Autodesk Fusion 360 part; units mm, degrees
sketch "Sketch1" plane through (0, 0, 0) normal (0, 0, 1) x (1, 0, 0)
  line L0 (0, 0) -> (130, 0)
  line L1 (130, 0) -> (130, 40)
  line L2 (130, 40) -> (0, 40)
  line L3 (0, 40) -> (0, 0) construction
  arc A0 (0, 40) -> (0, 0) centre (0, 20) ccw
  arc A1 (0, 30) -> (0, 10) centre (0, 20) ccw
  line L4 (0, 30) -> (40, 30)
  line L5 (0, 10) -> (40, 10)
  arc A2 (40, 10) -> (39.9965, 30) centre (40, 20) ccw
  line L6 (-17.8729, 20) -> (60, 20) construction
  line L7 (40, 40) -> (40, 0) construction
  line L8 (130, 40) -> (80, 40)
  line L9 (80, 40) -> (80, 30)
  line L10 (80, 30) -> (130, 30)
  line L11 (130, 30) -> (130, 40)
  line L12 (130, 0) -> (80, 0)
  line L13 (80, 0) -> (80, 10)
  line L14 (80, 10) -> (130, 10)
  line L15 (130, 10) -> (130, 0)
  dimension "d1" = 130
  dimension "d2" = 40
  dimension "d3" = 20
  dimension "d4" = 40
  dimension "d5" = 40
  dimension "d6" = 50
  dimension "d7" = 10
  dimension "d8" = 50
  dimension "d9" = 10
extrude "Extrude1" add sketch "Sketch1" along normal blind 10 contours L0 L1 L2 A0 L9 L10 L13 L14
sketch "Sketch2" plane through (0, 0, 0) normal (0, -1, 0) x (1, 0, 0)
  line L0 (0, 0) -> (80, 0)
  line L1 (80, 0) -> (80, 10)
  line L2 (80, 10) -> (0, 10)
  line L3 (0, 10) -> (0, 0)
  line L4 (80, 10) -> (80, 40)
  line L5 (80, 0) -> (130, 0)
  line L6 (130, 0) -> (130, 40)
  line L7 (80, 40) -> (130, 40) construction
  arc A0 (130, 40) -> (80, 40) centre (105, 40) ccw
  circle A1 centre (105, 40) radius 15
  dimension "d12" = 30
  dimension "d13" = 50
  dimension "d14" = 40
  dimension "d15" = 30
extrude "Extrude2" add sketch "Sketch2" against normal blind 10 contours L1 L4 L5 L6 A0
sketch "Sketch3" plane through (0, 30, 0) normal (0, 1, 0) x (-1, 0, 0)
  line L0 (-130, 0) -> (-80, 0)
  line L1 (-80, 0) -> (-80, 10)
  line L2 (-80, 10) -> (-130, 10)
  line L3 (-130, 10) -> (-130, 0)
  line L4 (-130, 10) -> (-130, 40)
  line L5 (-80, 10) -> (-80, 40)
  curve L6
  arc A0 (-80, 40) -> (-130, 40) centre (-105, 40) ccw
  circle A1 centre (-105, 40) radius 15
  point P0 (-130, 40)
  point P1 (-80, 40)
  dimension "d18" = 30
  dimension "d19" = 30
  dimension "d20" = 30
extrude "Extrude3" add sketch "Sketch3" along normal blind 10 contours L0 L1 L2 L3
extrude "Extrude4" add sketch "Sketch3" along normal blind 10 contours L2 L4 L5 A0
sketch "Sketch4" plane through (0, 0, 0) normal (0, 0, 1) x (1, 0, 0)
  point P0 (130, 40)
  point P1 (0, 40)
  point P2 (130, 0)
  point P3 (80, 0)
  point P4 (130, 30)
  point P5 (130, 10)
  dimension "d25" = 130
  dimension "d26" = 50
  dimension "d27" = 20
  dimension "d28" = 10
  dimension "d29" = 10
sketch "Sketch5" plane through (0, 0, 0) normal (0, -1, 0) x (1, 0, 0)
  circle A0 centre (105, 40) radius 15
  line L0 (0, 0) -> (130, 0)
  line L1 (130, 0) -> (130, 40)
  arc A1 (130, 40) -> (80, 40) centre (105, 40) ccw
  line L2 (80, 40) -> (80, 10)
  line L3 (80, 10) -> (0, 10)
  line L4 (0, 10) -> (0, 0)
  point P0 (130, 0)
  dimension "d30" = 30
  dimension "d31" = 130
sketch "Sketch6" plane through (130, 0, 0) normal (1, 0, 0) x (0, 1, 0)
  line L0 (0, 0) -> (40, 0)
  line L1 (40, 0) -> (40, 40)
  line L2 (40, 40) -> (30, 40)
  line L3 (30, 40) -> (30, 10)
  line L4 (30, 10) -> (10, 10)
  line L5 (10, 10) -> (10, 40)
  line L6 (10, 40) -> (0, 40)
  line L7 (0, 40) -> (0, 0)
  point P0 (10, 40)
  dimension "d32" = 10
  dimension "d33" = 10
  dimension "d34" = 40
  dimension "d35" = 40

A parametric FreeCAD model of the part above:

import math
import FreeCAD as App
import Part
import Sketcher

V = App.Vector
Q = App.Units.Quantity


def add_polygon(sketch, points):
    """Adds a closed chain of lines whose ends are joined by coincident constraints."""
    first, n = sketch.GeometryCount, len(points)
    for a, b in zip(points, points[1:] + points[:1]):
        sketch.addGeometry(Part.LineSegment(App.Vector(*a, 0), App.Vector(*b, 0)), False)
    for i in range(n):
        sketch.addConstraint(Sketcher.Constraint("Coincident", first + i, 2, first + (i + 1) % n, 1))

doc = App.newDocument("Part")
body = doc.addObject("PartDesign::Body", "Body")

# Sketch on XY plane
sketch1 = body.newObject("Sketcher::SketchObject", "Sketch")
sketch1.AttachmentSupport = (doc.getObject("XY_Plane"), [""])
sketch1.MapMode = "FlatFace"
sketch1.addGeometry(Part.ArcOfCircle(Part.Circle(V(0, 20, 0), V(0, 0, 1), 20), math.radians(90), math.radians(270)), False)
sketch1.addGeometry(Part.LineSegment(V(0, 0, 0), V(80, 0, 0)), False)
sketch1.addGeometry(Part.LineSegment(V(80, 0, 0), V(80, 10, 0)), False)
sketch1.addGeometry(Part.LineSegment(V(80, 10, 0), V(130, 10, 0)), False)
sketch1.addGeometry(Part.LineSegment(V(130, 10, 0), V(130, 30, 0)), False)
sketch1.addGeometry(Part.LineSegment(V(130, 30, 0), V(80, 30, 0)), False)
sketch1.addGeometry(Part.LineSegment(V(80, 30, 0), V(80, 40, 0)), False)
sketch1.addGeometry(Part.LineSegment(V(80, 40, 0), V(0, 40, 0)), False)
sketch1.addGeometry(Part.ArcOfCircle(Part.Circle(V(0, 20, 0), V(0, 0, 1), 10), math.radians(90), math.radians(270)), False)
sketch1.addGeometry(Part.LineSegment(V(0, 30, 0), V(40, 30, 0)), False)
sketch1.addGeometry(Part.ArcOfCircle(Part.Circle(V(40, 20, 0), V(0, 0, 1), 10), math.radians(-90), math.radians(90)), False)
sketch1.addGeometry(Part.LineSegment(V(40, 10, 0), V(0, 10, 0)), False)
sketch1.addConstraint(Sketcher.Constraint("Tangent", 0, 2, 1, 1))
sketch1.addConstraint(Sketcher.Constraint("Coincident", 1, 2, 2, 1))
sketch1.addConstraint(Sketcher.Constraint("Coincident", 2, 2, 3, 1))
sketch1.addConstraint(Sketcher.Constraint("Coincident", 3, 2, 4, 1))
sketch1.addConstraint(Sketcher.Constraint("Coincident", 4, 2, 5, 1))
sketch1.addConstraint(Sketcher.Constraint("Coincident", 5, 2, 6, 1))
sketch1.addConstraint(Sketcher.Constraint("Coincident", 6, 2, 7, 1))
sketch1.addConstraint(Sketcher.Constraint("Tangent", 7, 2, 0, 1))
sketch1.addConstraint(Sketcher.Constraint("Tangent", 8, 1, 9, 1))
sketch1.addConstraint(Sketcher.Constraint("Tangent", 9, 2, 10, 2))
sketch1.addConstraint(Sketcher.Constraint("Tangent", 10, 1, 11, 1))
sketch1.addConstraint(Sketcher.Constraint("Tangent", 11, 2, 8, 2))
sketch1.addConstraint(Sketcher.Constraint("Horizontal", 1))
sketch1.addConstraint(Sketcher.Constraint("Vertical", 2))
sketch1.addConstraint(Sketcher.Constraint("Horizontal", 3))
sketch1.addConstraint(Sketcher.Constraint("Vertical", 4))
sketch1.addConstraint(Sketcher.Constraint("Horizontal", 5))
sketch1.addConstraint(Sketcher.Constraint("Vertical", 6))
sketch1.addConstraint(Sketcher.Constraint("Horizontal", 7))
sketch1.addConstraint(Sketcher.Constraint("Horizontal", 9))
sketch1.addConstraint(Sketcher.Constraint("Horizontal", 11))
sketch1.addConstraint(Sketcher.Constraint("Coincident", 0, 2, -1, 1))
sketch1.addConstraint(Sketcher.Constraint("Coincident", 8, 3, 0, 3))
sketch1.addConstraint(Sketcher.Constraint("Horizontal", 5, 2, 8, 1))
sketch1.addConstraint(Sketcher.Constraint("Horizontal", 3, 2, 10, 1))
sketch1.addConstraint(Sketcher.Constraint("Vertical", 2, 2, 5, 2))
sketch1.addConstraint(Sketcher.Constraint("Radius", 0, Q("20 mm")))
sketch1.addConstraint(Sketcher.Constraint("Radius", 8, Q("10 mm")))
sketch1.addConstraint(Sketcher.Constraint("DistanceX", 3, 1, 3, 2, Q("50 mm")))
sketch1.addConstraint(Sketcher.Constraint("DistanceX", 9, 1, 9, 2, Q("40 mm")))
sketch1.addConstraint(Sketcher.Constraint("DistanceX", -1, 1, 3, 2, Q("130 mm")))
pad1 = body.newObject("PartDesign::Pad", "Pad")
pad1.Profile = sketch1
pad1.Length = 10

# Sketch on XZ plane
sketch2 = body.newObject("Sketcher::SketchObject", "Sketch001")
sketch2.AttachmentSupport = (doc.getObject("XZ_Plane"), [""])
sketch2.MapMode = "FlatFace"
sketch2.addGeometry(Part.LineSegment(V(80, 40, 0), V(80, 0, 0)), False)
sketch2.addGeometry(Part.LineSegment(V(80, 0, 0), V(130, 0, 0)), False)
sketch2.addGeometry(Part.LineSegment(V(130, 0, 0), V(130, 40, 0)), False)
sketch2.addGeometry(Part.ArcOfCircle(Part.Circle(V(105, 40, 0), V(0, 0, 1), 25), math.radians(0), math.radians(180)), False)
sketch2.addGeometry(Part.Circle(V(105, 40, 0), V(0, 0, 1), 15), False)
sketch2.addConstraint(Sketcher.Constraint("Coincident", 0, 2, 1, 1))
sketch2.addConstraint(Sketcher.Constraint("Coincident", 1, 2, 2, 1))
sketch2.addConstraint(Sketcher.Constraint("Tangent", 2, 2, 3, 1))
sketch2.addConstraint(Sketcher.Constraint("Tangent", 3, 2, 0, 1))
sketch2.addConstraint(Sketcher.Constraint("Vertical", 0))
sketch2.addConstraint(Sketcher.Constraint("Horizontal", 1))
sketch2.addConstraint(Sketcher.Constraint("Vertical", 2))
sketch2.addConstraint(Sketcher.Constraint("Coincident", 4, 3, 3, 3))
sketch2.addConstraint(Sketcher.Constraint("PointOnObject", 0, 2, -1))
sketch2.addConstraint(Sketcher.Constraint("Diameter", 4, Q("30 mm")))
sketch2.addConstraint(Sketcher.Constraint("Radius", 3, Q("25 mm")))
sketch2.addConstraint(Sketcher.Constraint("DistanceY", 0, 2, 0, 1, Q("40 mm")))
sketch2.addConstraint(Sketcher.Constraint("DistanceX", -1, 1, 3, 3, Q("105 mm")))
pad2 = body.newObject("PartDesign::Pad", "Pad001")
pad2.Profile = sketch2
pad2.Length = 10
pad2.Reversed = True

# Sketch on XZ plane
sketch3 = body.newObject("Sketcher::SketchObject", "Sketch002")
sketch3.AttachmentSupport = (doc.getObject("XZ_Plane"), [""])
sketch3.MapMode = "FlatFace"
sketch3.AttachmentOffset = App.Placement(V(0, 0, -30), App.Rotation())
add_polygon(sketch3, [(130, 10), (130, 0), (80, 0), (80, 10)])  # lines 0-3
sketch3.addConstraint(Sketcher.Constraint("Vertical", 0))
sketch3.addConstraint(Sketcher.Constraint("Horizontal", 1))
sketch3.addConstraint(Sketcher.Constraint("Vertical", 2))
sketch3.addConstraint(Sketcher.Constraint("Horizontal", 3))
sketch3.addConstraint(Sketcher.Constraint("PointOnObject", 0, 2, -1))
sketch3.addConstraint(Sketcher.Constraint("DistanceX", 1, 2, 1, 1, Q("50 mm")))
sketch3.addConstraint(Sketcher.Constraint("DistanceY", 0, 2, 0, 1, Q("10 mm")))
sketch3.addConstraint(Sketcher.Constraint("DistanceX", -1, 1, 0, 2, Q("130 mm")))
pad3 = body.newObject("PartDesign::Pad", "Pad002")
pad3.Profile = sketch3
pad3.Length = 10
pad3.Reversed = True

# Sketch on XZ plane
sketch4 = body.newObject("Sketcher::SketchObject", "Sketch003")
sketch4.AttachmentSupport = (doc.getObject("XZ_Plane"), [""])
sketch4.MapMode = "FlatFace"
sketch4.AttachmentOffset = App.Placement(V(0, 0, -30), App.Rotation())
sketch4.addGeometry(Part.LineSegment(V(130, 40, 0), V(130, 10, 0)), False)
sketch4.addGeometry(Part.LineSegment(V(130, 10, 0), V(80, 10, 0)), False)
sketch4.addGeometry(Part.LineSegment(V(80, 10, 0), V(80, 40, 0)), False)
sketch4.addGeometry(Part.ArcOfCircle(Part.Circle(V(105, 40, 0), V(0, 0, 1), 25), math.radians(0), math.radians(180)), False)
sketch4.addGeometry(Part.Circle(V(105, 40, 0), V(0, 0, 1), 15), False)
sketch4.addConstraint(Sketcher.Constraint("Coincident", 0, 2, 1, 1))
sketch4.addConstraint(Sketcher.Constraint("Coincident", 1, 2, 2, 1))
sketch4.addConstraint(Sketcher.Constraint("Tangent", 2, 2, 3, 2))
sketch4.addConstraint(Sketcher.Constraint("Tangent", 3, 1, 0, 1))
sketch4.addConstraint(Sketcher.Constraint("Vertical", 0))
sketch4.addConstraint(Sketcher.Constraint("Horizontal", 1))
sketch4.addConstraint(Sketcher.Constraint("Vertical", 2))
sketch4.addConstraint(Sketcher.Constraint("Coincident", 4, 3, 3, 3))
sketch4.addConstraint(Sketcher.Constraint("Diameter", 4, Q("30 mm")))
sketch4.addConstraint(Sketcher.Constraint("DistanceY", 0, 2, 0, 1, Q("30 mm")))
sketch4.addConstraint(Sketcher.Constraint("Radius", 3, Q("25 mm")))
sketch4.addConstraint(Sketcher.Constraint("DistanceX", -1, 1, 3, 3, Q("105 mm")))
sketch4.addConstraint(Sketcher.Constraint("DistanceY", -1, 1, 3, 3, Q("40 mm")))
pad4 = body.newObject("PartDesign::Pad", "Pad003")
pad4.Profile = sketch4
pad4.Length = 10
pad4.Reversed = True

doc.recompute()
